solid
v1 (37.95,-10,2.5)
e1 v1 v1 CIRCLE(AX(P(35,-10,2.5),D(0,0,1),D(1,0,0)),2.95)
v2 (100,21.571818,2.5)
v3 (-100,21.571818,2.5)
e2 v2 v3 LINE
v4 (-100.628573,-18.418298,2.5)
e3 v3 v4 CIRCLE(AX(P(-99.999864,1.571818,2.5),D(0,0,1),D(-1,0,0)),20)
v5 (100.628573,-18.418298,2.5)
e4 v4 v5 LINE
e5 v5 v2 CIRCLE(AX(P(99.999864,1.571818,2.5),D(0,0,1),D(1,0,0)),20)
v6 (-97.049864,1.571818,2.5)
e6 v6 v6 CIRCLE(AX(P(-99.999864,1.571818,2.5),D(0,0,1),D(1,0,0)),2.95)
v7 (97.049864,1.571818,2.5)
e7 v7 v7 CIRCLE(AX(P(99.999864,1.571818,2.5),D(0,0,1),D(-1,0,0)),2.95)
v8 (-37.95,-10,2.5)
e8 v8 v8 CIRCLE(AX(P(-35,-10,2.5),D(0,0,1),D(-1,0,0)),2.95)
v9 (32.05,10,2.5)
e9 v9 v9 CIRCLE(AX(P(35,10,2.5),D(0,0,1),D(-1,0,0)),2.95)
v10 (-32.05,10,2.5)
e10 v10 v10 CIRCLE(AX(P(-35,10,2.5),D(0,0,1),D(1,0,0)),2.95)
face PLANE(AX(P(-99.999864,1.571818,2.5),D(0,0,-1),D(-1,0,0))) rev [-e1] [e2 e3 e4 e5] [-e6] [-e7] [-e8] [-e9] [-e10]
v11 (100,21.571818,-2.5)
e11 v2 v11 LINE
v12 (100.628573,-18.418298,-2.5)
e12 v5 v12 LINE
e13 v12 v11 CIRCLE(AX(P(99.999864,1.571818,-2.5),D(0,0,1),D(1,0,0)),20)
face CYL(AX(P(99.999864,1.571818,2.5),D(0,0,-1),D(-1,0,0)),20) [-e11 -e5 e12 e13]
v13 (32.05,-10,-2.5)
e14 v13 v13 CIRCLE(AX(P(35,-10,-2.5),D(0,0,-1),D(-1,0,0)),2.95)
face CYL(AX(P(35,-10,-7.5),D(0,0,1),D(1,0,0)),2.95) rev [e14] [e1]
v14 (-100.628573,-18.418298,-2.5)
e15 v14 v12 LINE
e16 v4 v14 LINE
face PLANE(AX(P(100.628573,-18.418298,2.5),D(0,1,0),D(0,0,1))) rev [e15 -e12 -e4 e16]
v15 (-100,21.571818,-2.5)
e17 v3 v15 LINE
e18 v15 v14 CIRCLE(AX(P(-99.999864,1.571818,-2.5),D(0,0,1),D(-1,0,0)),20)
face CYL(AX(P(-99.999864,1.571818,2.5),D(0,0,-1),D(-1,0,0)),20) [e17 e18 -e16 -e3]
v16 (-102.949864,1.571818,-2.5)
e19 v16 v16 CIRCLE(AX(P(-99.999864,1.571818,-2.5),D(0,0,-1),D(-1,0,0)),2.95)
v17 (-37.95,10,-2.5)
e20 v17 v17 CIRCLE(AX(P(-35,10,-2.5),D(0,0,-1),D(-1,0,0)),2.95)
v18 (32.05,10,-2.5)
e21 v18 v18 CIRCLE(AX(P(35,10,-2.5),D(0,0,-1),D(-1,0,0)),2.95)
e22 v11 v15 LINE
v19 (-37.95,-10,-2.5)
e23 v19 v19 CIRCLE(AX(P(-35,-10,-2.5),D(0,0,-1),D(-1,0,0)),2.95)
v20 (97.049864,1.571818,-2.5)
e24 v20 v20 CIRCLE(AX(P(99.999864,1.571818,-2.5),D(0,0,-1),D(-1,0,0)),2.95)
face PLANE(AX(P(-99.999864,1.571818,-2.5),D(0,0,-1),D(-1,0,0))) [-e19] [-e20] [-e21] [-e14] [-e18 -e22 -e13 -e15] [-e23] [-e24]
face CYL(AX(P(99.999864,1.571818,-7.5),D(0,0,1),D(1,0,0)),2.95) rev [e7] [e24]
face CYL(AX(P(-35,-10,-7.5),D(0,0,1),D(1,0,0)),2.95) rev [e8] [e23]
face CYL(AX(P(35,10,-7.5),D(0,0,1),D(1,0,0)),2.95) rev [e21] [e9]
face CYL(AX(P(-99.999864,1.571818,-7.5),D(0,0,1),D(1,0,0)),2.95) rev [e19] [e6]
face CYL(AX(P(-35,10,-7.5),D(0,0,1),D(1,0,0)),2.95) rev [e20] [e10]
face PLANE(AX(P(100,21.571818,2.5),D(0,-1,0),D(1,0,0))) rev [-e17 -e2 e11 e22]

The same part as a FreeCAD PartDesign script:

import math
import FreeCAD as App
import Part
import Sketcher
Q = App.Units.Quantity

doc = App.newDocument("Part")
body = doc.addObject("PartDesign::Body", "Body")

# Sketch on XY plane
sketch1 = doc.addObject("Sketcher::SketchObject", "Sketch")
body.addObject(sketch1)
sketch1.AttachmentSupport = (doc.XY_Plane, [""])
sketch1.MapMode = "FlatFace"
sketch1.addGeometry([
    Part.LineSegment(App.Vector(-101, -18, 0), App.Vector(101, -18, 0)),
    Part.ArcOfCircle(Part.Circle(App.Vector(100, 2, 0), App.Vector(0, 0, 1), 20), math.radians(-88), math.radians(90)),
    Part.LineSegment(App.Vector(100, 22, 0), App.Vector(-100, 22, 0)),
    Part.ArcOfCircle(Part.Circle(App.Vector(-100, 2, 0), App.Vector(0, 0, 1), 20), math.radians(90), math.radians(268)),
], False)
sketch1.addConstraint([
    Sketcher.Constraint("Coincident", 0, 2, 1, 1),
    Sketcher.Constraint("Coincident", 1, 2, 2, 1),
    Sketcher.Constraint("Coincident", 2, 2, 3, 1),
    Sketcher.Constraint("Coincident", 3, 2, 0, 1),
    Sketcher.Constraint("Horizontal", 0),
    Sketcher.Constraint("Horizontal", 2),
    Sketcher.Constraint("Equal", 1, 3),
    Sketcher.Constraint("Radius", 1, Q("20 mm")),
    Sketcher.Constraint("DistanceX", 2, 2, 2, 1, Q("200 mm")),
    Sketcher.Constraint("DistanceX", -1, 1, 1, 2, Q("100 mm")),
    Sketcher.Constraint("DistanceX", 0, 1, 0, 2, Q("201.257145 mm")),
    Sketcher.Constraint("DistanceY", -1, 1, 1, 3, Q("1.571818 mm")),
    Sketcher.Constraint("DistanceX", 1, 3, 0, 2, Q("0.628709 mm")),
    Sketcher.Constraint("DistanceX", -1, 1, 1, 3, Q("99.999864 mm")),
])
pad1 = doc.addObject("PartDesign::Pad", "Pad")
body.addObject(pad1)
pad1.Profile = sketch1
pad1.Length = 5
pad1.Midplane = True

# Sketch on XY plane
sketch2 = doc.addObject("Sketcher::SketchObject", "Sketch001")
body.addObject(sketch2)
sketch2.AttachmentSupport = (doc.XY_Plane, [""])
sketch2.MapMode = "FlatFace"
sketch2.AttachmentOffset = App.Placement(App.Vector(0, 0, 2.5), App.Rotation())
sketch2.addGeometry([
    Part.Circle(App.Vector(100, 1.6, 0), App.Vector(0, 0, 1), 3),
    Part.Circle(App.Vector(-100, 1.6, 0), App.Vector(0, 0, 1), 3),
], False)
sketch2.addConstraint([
    Sketcher.Constraint("Equal", 0, 1),
    Sketcher.Constraint("Symmetric", 0, 3, 1, 3, -2),
    Sketcher.Constraint("Diameter", 0, Q("5.9 mm")),
    Sketcher.Constraint("DistanceY", -1, 1, 0, 3, Q("1.571818 mm")),
    Sketcher.Constraint("DistanceX", -1, 1, 0, 3, Q("99.999864 mm")),
])
pocket1 = doc.addObject("PartDesign::Pocket", "Pocket")
body.addObject(pocket1)
pocket1.Profile = sketch2
pocket1.Length = 10

# Sketch on XY plane
sketch3 = doc.addObject("Sketcher::SketchObject", "Sketch002")
body.addObject(sketch3)
sketch3.AttachmentSupport = (doc.XY_Plane, [""])
sketch3.MapMode = "FlatFace"
sketch3.AttachmentOffset = App.Placement(App.Vector(0, 0, 2.5), App.Rotation())
sketch3.addGeometry([
    Part.Circle(App.Vector(-35, 10, 0), App.Vector(0, 0, 1), 3),
    Part.Circle(App.Vector(-35, -10, 0), App.Vector(0, 0, 1), 3),
    Part.Circle(App.Vector(35, -10, 0), App.Vector(0, 0, 1), 3),
    Part.Circle(App.Vector(35, 10, 0), App.Vector(0, 0, 1), 3),
], False)
sketch3.addConstraint([
    Sketcher.Constraint("Equal", 0, 1),
    Sketcher.Constraint("Equal", 1, 2),
    Sketcher.Constraint("Equal", 2, 3),
    Sketcher.Constraint("Symmetric", 0, 3, 2, 3, -1, 1),
    Sketcher.Constraint("Symmetric", 1, 3, 3, 3, -1, 1),
    Sketcher.Constraint("Symmetric", 1, 3, 2, 3, -2),
    Sketcher.Constraint("Diameter", 0, Q("5.9 mm")),
    Sketcher.Constraint("DistanceX", 0, 3, -1, 1, Q("35 mm")),
    Sketcher.Constraint("DistanceY", -1, 1, 0, 3, Q("10 mm")),
])
pocket2 = doc.addObject("PartDesign::Pocket", "Pocket001")
body.addObject(pocket2)
pocket2.Profile = sketch3
pocket2.Length = 10

doc.recompute()
